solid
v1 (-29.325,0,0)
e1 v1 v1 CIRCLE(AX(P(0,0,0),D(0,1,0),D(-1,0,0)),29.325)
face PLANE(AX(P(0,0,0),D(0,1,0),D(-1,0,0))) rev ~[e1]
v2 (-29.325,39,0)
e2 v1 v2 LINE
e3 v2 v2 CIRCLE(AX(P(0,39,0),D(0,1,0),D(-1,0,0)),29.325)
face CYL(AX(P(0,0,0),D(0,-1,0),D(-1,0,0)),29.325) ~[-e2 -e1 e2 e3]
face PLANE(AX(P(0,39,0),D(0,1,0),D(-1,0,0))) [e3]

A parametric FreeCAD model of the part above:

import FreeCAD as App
import Part
import Sketcher

V = App.Vector
Q = App.Units.Quantity

doc = App.newDocument("Part")
body = doc.addObject("PartDesign::Body", "Body")

# Sketch on XZ plane
sketch1 = body.newObject("Sketcher::SketchObject", "Sketch")
sketch1.AttachmentSupport = (doc.getObject("XZ_Plane"), [""])
sketch1.MapMode = "FlatFace"
sketch1.addGeometry(Part.Circle(V(0, 0, 0), V(0, 0, 1), 29), False)
sketch1.addConstraint([
    Sketcher.Constraint("Coincident", 0, 3, -1, 1),
    Sketcher.Constraint("Diameter", 0, Q("58.65 mm")),
])
pad1 = body.newObject("PartDesign::Pad", "Pad")
pad1.Profile = sketch1
pad1.Length = 39
pad1.Reversed = True

doc.recompute()
